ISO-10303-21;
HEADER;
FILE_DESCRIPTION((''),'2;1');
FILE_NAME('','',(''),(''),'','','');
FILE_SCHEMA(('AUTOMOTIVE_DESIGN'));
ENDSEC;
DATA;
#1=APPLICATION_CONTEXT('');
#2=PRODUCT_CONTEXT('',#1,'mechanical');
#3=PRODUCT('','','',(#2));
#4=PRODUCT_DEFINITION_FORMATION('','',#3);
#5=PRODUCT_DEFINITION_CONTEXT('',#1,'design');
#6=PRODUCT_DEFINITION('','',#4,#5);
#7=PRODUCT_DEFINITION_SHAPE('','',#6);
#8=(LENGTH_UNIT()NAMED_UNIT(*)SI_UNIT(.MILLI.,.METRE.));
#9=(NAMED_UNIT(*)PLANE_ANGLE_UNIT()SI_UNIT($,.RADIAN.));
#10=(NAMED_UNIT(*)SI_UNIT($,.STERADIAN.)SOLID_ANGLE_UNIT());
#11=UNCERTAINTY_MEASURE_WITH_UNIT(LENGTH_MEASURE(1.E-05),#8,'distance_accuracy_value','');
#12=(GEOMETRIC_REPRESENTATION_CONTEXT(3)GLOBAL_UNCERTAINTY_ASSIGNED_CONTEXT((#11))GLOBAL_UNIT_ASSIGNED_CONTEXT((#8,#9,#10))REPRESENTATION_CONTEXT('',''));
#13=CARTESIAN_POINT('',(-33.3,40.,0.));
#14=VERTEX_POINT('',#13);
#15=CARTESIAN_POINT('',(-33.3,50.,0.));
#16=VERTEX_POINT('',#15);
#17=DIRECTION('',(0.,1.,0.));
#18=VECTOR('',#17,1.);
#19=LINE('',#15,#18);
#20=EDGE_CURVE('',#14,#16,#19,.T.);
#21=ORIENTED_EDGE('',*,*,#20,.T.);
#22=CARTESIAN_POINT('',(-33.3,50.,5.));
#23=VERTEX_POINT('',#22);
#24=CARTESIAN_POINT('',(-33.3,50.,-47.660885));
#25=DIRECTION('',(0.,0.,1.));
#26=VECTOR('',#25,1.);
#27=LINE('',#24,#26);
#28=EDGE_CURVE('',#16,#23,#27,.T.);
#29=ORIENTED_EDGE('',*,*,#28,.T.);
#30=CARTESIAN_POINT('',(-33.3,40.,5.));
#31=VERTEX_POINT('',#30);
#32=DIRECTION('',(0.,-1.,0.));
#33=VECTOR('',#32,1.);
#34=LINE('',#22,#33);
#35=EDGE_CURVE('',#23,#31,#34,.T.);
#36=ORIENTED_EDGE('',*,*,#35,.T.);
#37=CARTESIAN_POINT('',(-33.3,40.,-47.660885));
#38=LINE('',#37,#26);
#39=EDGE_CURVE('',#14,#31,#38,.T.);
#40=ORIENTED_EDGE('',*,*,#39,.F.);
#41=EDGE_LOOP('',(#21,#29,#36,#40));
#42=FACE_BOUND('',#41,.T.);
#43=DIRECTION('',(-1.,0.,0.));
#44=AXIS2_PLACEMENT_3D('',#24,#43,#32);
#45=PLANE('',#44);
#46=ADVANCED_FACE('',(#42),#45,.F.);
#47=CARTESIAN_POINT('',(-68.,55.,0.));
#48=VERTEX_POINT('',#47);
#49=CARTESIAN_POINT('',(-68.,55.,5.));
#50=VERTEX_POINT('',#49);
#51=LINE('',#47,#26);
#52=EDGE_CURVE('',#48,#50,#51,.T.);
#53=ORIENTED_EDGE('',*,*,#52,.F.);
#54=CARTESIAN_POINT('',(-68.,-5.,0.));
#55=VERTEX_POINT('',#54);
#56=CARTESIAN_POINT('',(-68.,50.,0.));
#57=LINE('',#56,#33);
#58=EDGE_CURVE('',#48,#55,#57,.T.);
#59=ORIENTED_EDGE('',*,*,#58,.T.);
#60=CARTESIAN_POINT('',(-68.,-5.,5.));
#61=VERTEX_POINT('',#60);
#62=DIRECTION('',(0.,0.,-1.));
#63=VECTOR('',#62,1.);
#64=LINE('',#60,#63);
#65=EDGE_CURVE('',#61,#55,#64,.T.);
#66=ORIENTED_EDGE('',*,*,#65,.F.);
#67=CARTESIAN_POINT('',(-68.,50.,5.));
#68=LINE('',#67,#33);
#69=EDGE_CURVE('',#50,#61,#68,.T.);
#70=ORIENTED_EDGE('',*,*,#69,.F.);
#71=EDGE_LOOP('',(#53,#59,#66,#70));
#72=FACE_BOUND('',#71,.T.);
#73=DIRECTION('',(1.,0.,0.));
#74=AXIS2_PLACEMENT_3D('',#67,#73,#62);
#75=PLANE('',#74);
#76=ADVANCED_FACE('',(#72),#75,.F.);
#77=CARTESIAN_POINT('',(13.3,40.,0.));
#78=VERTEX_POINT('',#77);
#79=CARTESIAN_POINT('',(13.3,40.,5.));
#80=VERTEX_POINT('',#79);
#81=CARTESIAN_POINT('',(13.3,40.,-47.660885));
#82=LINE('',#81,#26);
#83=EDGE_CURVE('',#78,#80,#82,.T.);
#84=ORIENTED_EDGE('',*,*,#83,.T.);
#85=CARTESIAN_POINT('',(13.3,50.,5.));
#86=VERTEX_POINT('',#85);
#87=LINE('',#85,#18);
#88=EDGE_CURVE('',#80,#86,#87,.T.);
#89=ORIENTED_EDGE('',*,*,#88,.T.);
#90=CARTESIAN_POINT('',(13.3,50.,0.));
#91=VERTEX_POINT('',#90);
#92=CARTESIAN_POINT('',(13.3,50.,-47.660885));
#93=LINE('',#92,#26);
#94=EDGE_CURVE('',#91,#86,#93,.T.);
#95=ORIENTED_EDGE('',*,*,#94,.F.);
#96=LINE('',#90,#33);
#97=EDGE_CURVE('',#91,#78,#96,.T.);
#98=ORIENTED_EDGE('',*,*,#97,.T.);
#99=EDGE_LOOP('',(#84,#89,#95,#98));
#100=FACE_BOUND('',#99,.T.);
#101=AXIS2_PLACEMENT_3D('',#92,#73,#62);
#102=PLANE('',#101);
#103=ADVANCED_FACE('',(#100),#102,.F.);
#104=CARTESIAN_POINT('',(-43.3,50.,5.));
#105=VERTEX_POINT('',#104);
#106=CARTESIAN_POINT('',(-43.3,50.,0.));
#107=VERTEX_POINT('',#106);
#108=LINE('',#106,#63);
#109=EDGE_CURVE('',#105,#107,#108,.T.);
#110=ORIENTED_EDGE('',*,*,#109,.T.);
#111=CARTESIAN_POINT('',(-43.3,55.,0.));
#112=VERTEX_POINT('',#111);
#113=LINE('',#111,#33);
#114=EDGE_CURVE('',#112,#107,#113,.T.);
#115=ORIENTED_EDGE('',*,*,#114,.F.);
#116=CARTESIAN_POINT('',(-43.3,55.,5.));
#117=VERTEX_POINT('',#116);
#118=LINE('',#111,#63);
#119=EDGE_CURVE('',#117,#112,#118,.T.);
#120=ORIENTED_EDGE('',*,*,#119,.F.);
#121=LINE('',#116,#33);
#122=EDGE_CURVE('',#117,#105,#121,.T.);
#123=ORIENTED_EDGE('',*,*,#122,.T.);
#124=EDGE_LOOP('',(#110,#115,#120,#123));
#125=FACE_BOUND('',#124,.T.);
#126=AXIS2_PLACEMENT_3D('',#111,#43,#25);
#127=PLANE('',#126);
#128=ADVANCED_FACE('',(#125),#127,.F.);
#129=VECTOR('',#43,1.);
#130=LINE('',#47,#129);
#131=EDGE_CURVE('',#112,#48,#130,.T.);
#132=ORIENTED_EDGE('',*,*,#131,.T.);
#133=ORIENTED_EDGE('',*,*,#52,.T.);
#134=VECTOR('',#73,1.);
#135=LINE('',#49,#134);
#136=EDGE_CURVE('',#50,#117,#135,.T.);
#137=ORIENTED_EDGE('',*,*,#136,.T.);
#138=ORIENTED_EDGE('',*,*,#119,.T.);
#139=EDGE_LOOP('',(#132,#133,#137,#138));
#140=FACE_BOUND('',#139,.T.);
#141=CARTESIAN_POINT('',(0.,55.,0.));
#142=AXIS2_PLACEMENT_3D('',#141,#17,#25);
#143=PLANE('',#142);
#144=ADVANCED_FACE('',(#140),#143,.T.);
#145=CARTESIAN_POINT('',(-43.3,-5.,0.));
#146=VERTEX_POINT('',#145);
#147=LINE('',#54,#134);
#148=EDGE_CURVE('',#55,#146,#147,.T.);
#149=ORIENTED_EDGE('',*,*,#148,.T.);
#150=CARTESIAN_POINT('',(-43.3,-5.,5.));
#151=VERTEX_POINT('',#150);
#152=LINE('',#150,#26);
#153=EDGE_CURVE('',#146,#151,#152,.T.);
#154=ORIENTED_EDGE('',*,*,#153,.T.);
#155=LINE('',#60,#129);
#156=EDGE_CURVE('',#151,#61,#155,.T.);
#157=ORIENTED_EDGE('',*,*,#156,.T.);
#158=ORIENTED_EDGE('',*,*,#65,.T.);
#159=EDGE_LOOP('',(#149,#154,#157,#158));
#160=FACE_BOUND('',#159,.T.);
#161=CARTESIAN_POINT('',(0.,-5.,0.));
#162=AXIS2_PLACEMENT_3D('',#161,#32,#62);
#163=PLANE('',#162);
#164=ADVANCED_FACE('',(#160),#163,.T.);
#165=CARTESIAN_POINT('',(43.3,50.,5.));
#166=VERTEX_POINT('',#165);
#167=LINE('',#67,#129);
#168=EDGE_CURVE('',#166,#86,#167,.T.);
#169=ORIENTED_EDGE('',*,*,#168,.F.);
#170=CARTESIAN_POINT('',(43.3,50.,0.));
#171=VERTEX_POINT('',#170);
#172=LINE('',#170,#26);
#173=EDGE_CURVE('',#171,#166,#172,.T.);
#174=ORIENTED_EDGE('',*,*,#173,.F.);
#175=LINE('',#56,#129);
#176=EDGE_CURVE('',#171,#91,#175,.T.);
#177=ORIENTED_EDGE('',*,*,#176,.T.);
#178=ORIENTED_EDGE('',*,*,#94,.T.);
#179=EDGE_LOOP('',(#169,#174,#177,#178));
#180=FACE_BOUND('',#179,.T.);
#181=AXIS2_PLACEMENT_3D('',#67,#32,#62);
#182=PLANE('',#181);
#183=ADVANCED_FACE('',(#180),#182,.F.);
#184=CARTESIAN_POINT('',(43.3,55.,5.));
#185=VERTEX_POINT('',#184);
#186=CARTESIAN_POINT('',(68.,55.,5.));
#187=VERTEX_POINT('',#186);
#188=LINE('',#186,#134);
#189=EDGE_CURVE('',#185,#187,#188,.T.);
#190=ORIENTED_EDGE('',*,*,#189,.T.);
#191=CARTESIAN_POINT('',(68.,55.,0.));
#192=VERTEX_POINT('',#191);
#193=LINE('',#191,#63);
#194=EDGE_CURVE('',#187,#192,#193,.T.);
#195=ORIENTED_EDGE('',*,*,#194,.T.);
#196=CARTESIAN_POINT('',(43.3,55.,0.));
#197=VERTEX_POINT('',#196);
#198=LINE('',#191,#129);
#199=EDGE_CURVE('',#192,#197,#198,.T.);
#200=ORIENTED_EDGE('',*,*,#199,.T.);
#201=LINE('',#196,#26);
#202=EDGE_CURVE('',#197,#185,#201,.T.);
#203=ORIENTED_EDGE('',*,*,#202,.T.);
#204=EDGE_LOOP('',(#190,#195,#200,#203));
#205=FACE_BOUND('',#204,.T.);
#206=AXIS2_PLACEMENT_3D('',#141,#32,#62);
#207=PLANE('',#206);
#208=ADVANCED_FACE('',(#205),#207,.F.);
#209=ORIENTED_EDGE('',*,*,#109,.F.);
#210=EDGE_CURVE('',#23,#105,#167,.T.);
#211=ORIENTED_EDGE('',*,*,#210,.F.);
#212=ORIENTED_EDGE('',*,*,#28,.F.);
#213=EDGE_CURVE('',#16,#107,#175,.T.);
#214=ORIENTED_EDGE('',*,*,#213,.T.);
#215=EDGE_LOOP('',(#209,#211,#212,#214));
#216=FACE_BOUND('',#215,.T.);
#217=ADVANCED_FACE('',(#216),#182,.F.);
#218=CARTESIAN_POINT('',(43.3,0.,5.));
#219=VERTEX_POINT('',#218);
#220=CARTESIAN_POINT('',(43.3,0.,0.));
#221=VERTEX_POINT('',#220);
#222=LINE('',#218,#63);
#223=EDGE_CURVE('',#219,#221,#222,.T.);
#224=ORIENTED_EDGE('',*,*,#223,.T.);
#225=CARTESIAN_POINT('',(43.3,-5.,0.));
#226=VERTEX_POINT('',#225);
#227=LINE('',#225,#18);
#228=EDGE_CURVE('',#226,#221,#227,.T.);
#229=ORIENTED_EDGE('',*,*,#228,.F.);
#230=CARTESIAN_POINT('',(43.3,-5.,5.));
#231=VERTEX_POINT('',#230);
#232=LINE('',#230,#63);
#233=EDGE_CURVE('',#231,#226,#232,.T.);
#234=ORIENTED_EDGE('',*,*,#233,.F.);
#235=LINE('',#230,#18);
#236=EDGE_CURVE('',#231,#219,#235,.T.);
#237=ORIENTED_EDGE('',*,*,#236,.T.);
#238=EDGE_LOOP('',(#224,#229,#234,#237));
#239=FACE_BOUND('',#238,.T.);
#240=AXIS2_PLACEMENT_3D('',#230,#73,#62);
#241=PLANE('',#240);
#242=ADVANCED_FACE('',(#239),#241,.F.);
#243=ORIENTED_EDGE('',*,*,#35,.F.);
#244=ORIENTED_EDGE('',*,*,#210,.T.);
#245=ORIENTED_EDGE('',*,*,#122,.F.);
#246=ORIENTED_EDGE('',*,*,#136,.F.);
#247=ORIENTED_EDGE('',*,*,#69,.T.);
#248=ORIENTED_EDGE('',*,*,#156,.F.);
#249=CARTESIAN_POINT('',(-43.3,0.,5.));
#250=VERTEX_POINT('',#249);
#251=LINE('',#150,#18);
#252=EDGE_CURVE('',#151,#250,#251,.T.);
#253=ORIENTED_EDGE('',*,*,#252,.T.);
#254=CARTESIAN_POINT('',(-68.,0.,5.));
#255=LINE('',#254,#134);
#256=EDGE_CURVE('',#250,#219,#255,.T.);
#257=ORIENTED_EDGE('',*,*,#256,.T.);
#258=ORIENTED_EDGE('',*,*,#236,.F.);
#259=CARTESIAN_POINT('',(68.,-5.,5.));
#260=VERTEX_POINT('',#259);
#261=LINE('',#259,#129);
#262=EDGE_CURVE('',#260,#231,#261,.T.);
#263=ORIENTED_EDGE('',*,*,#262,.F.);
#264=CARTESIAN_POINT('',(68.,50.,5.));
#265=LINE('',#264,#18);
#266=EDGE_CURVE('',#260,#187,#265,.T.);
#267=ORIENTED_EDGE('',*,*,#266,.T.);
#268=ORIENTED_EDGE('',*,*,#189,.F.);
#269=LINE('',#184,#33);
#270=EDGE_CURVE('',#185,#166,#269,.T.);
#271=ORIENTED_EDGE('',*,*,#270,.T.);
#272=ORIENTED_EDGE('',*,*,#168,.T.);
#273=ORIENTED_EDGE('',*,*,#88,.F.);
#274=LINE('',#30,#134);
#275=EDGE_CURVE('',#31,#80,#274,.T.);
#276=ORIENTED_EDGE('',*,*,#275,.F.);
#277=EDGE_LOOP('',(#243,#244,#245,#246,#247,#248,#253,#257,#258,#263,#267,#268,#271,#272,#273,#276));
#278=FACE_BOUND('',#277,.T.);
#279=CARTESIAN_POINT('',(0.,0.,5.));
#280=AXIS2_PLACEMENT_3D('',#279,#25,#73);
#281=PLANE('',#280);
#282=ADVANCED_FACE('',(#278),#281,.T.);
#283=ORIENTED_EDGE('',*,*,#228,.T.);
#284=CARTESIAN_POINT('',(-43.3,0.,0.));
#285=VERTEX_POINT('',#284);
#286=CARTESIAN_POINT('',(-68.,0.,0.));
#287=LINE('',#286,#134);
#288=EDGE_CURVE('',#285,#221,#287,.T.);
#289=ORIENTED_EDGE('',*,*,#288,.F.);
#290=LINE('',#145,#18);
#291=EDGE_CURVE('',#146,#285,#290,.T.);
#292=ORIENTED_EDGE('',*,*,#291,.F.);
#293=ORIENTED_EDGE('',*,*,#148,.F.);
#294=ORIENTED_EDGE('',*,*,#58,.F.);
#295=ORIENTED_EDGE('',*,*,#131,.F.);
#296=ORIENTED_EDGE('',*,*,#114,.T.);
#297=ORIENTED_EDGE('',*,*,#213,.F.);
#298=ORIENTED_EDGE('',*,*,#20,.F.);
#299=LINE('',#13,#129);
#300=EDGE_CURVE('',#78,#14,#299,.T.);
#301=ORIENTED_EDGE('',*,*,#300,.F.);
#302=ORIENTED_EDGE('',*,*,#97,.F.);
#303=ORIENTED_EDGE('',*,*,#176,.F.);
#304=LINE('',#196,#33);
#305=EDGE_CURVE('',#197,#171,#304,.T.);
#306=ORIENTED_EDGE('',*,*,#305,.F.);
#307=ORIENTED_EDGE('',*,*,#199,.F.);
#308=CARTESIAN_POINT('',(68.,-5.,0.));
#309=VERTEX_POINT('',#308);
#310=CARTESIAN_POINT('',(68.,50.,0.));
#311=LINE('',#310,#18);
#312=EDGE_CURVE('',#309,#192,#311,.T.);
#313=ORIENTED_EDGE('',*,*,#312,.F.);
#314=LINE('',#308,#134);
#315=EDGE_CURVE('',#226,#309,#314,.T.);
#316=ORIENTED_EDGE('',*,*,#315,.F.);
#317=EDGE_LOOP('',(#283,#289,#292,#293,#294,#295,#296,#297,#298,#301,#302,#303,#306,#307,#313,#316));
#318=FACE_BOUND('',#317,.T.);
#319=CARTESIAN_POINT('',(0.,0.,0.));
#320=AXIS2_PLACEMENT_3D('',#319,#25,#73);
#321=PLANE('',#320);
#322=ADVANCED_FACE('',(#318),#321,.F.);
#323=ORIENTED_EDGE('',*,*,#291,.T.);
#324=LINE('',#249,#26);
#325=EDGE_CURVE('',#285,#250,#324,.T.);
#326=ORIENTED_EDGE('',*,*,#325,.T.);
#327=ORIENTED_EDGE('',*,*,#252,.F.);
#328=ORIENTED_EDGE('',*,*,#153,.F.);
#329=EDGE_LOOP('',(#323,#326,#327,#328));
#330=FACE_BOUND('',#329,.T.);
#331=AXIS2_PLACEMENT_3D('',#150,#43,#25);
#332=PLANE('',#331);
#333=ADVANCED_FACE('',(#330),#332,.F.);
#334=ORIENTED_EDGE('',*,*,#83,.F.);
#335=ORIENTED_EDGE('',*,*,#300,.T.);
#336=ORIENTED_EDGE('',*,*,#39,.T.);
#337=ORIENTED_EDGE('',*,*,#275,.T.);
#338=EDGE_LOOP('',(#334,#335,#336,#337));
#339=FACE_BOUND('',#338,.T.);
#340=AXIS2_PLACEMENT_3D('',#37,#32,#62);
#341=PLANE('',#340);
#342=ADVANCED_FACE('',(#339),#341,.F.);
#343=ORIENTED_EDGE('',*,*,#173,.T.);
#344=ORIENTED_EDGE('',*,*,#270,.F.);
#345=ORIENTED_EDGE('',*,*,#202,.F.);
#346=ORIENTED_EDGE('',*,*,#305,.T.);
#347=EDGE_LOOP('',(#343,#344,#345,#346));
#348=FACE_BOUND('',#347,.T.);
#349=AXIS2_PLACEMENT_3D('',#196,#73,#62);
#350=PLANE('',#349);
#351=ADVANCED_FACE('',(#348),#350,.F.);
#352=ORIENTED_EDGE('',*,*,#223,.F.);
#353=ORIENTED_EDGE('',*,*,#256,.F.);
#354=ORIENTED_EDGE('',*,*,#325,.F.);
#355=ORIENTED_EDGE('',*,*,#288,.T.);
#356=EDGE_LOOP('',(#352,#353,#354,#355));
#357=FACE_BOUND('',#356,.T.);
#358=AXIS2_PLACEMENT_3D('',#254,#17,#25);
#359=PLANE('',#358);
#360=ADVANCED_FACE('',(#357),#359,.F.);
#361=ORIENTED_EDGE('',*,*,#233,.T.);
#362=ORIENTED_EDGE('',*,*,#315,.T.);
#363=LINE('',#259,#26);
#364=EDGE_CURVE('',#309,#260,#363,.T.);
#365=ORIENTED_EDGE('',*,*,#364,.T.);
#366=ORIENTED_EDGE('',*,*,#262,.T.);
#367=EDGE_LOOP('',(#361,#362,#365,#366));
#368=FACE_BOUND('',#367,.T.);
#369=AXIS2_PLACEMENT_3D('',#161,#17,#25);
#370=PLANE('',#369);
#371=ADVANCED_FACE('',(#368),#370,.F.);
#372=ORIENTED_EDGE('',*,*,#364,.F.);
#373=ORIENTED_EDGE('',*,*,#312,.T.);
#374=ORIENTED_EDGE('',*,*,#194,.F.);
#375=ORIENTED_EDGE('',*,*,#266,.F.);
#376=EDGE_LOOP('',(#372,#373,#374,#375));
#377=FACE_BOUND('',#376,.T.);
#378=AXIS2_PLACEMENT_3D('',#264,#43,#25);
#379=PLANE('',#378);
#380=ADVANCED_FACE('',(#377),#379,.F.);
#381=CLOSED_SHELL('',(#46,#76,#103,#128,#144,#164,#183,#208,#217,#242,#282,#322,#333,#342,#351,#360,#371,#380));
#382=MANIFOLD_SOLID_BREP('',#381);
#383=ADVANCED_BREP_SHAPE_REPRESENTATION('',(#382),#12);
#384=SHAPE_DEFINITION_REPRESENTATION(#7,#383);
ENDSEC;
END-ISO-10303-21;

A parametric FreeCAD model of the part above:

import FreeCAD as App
import Part
import Sketcher

doc = App.newDocument("Part")
body = doc.addObject("PartDesign::Body", "Body")

# Sketch on XY plane
sketch1 = doc.addObject("Sketcher::SketchObject", "Sketch")
body.addObject(sketch1)
sketch1.AttachmentSupport = (doc.XY_Plane, [""])
sketch1.MapMode = "FlatFace"
sketch1.addGeometry(Part.LineSegment(App.Vector(-68, 50, 0), App.Vector(-68, 0, 0)), False)
sketch1.addGeometry(Part.LineSegment(App.Vector(-68, 0, 0), App.Vector(68, 0, 0)), False)
sketch1.addGeometry(Part.LineSegment(App.Vector(68, 0, 0), App.Vector(68, 50, 0)), False)
sketch1.addGeometry(Part.LineSegment(App.Vector(68, 50, 0), App.Vector(-68, 50, 0)), False)
sketch1.addConstraint(Sketcher.Constraint("Coincident", 0, 2, 1, 1))
sketch1.addConstraint(Sketcher.Constraint("Coincident", 1, 2, 2, 1))
sketch1.addConstraint(Sketcher.Constraint("Coincident", 2, 2, 3, 1))
sketch1.addConstraint(Sketcher.Constraint("Coincident", 3, 2, 0, 1))
sketch1.addConstraint(Sketcher.Constraint("Vertical", 0))
sketch1.addConstraint(Sketcher.Constraint("Horizontal", 1))
sketch1.addConstraint(Sketcher.Constraint("Vertical", 2))
sketch1.addConstraint(Sketcher.Constraint("Horizontal", 3))
sketch1.addConstraint(Sketcher.Constraint("Symmetric", 0, 2, 1, 2, -1, 1))
sketch1.addConstraint(Sketcher.Constraint("DistanceX", 1, 1, 1, 2, 136.0))
sketch1.addConstraint(Sketcher.Constraint("DistanceY", 0, 2, 0, 1, 50.0))
pad1 = doc.addObject("PartDesign::Pad", "Pad")
body.addObject(pad1)
pad1.Profile = sketch1
pad1.Length = 5

# Sketch on XZ plane
sketch2 = doc.addObject("Sketcher::SketchObject", "Sketch001")
body.addObject(sketch2)
sketch2.AttachmentSupport = (doc.XZ_Plane, [""])
sketch2.MapMode = "FlatFace"
sketch2.AttachmentOffset = App.Placement(App.Vector(0, 0, -50), App.Rotation())
sketch2.addGeometry(Part.LineSegment(App.Vector(-68, 0, 0), App.Vector(-68, 5, 0)), False)
sketch2.addGeometry(Part.LineSegment(App.Vector(-68, 5, 0), App.Vector(-43.3, 5, 0)), False)
sketch2.addGeometry(Part.LineSegment(App.Vector(-43.3, 5, 0), App.Vector(-43.3, 0, 0)), False)
sketch2.addGeometry(Part.LineSegment(App.Vector(-43.3, 0, 0), App.Vector(-68, 0, 0)), False)
sketch2.addGeometry(Part.LineSegment(App.Vector(43.3, 0, 0), App.Vector(43.3, 5, 0)), False)
sketch2.addGeometry(Part.LineSegment(App.Vector(43.3, 5, 0), App.Vector(68, 5, 0)), False)
sketch2.addGeometry(Part.LineSegment(App.Vector(68, 5, 0), App.Vector(68, 0, 0)), False)
sketch2.addGeometry(Part.LineSegment(App.Vector(68, 0, 0), App.Vector(43.3, 0, 0)), False)
sketch2.addConstraint(Sketcher.Constraint("Coincident", 0, 2, 1, 1))
sketch2.addConstraint(Sketcher.Constraint("Coincident", 1, 2, 2, 1))
sketch2.addConstraint(Sketcher.Constraint("Coincident", 2, 2, 3, 1))
sketch2.addConstraint(Sketcher.Constraint("Coincident", 3, 2, 0, 1))
sketch2.addConstraint(Sketcher.Constraint("Coincident", 4, 2, 5, 1))
sketch2.addConstraint(Sketcher.Constraint("Coincident", 5, 2, 6, 1))
sketch2.addConstraint(Sketcher.Constraint("Coincident", 6, 2, 7, 1))
sketch2.addConstraint(Sketcher.Constraint("Coincident", 7, 2, 4, 1))
sketch2.addConstraint(Sketcher.Constraint("Vertical", 0))
sketch2.addConstraint(Sketcher.Constraint("Horizontal", 1))
sketch2.addConstraint(Sketcher.Constraint("Vertical", 2))
sketch2.addConstraint(Sketcher.Constraint("Horizontal", 3))
sketch2.addConstraint(Sketcher.Constraint("Vertical", 4))
sketch2.addConstraint(Sketcher.Constraint("Horizontal", 5))
sketch2.addConstraint(Sketcher.Constraint("Vertical", 6))
sketch2.addConstraint(Sketcher.Constraint("Horizontal", 7))
sketch2.addConstraint(Sketcher.Constraint("Symmetric", 3, 2, 6, 2, -1, 1))
sketch2.addConstraint(Sketcher.Constraint("Symmetric", 1, 2, 4, 2, -2))
sketch2.addConstraint(Sketcher.Constraint("PointOnObject", 2, 2, -1))
sketch2.addConstraint(Sketcher.Constraint("DistanceY", 0, 1, 0, 2, 5.0))
sketch2.addConstraint(Sketcher.Constraint("DistanceX", 1, 1, 1, 2, 24.7))
sketch2.addConstraint(Sketcher.Constraint("DistanceX", 0, 2, -1, 1, 68.0))
pad2 = doc.addObject("PartDesign::Pad", "Pad001")
body.addObject(pad2)
pad2.Profile = sketch2
pad2.Length = 5
pad2.Reversed = True

# Sketch on XZ plane
sketch3 = doc.addObject("Sketcher::SketchObject", "Sketch002")
body.addObject(sketch3)
sketch3.AttachmentSupport = (doc.XZ_Plane, [""])
sketch3.MapMode = "FlatFace"
sketch3.addGeometry(Part.LineSegment(App.Vector(-68, 5, 0), App.Vector(-68, 0, 0)), False)
sketch3.addGeometry(Part.LineSegment(App.Vector(-68, 0, 0), App.Vector(-43.3, 0, 0)), False)
sketch3.addGeometry(Part.LineSegment(App.Vector(-43.3, 0, 0), App.Vector(-43.3, 5, 0)), False)
sketch3.addGeometry(Part.LineSegment(App.Vector(-43.3, 5, 0), App.Vector(-68, 5, 0)), False)
sketch3.addGeometry(Part.LineSegment(App.Vector(43.3, 5, 0), App.Vector(43.3, 0, 0)), False)
sketch3.addGeometry(Part.LineSegment(App.Vector(43.3, 0, 0), App.Vector(68, 0, 0)), False)
sketch3.addGeometry(Part.LineSegment(App.Vector(68, 0, 0), App.Vector(68, 5, 0)), False)
sketch3.addGeometry(Part.LineSegment(App.Vector(68, 5, 0), App.Vector(43.3, 5, 0)), False)
sketch3.addConstraint(Sketcher.Constraint("Coincident", 0, 2, 1, 1))
sketch3.addConstraint(Sketcher.Constraint("Coincident", 1, 2, 2, 1))
sketch3.addConstraint(Sketcher.Constraint("Coincident", 2, 2, 3, 1))
sketch3.addConstraint(Sketcher.Constraint("Coincident", 3, 2, 0, 1))
sketch3.addConstraint(Sketcher.Constraint("Coincident", 4, 2, 5, 1))
sketch3.addConstraint(Sketcher.Constraint("Coincident", 5, 2, 6, 1))
sketch3.addConstraint(Sketcher.Constraint("Coincident", 6, 2, 7, 1))
sketch3.addConstraint(Sketcher.Constraint("Coincident", 7, 2, 4, 1))
sketch3.addConstraint(Sketcher.Constraint("Vertical", 0))
sketch3.addConstraint(Sketcher.Constraint("Horizontal", 1))
sketch3.addConstraint(Sketcher.Constraint("Vertical", 2))
sketch3.addConstraint(Sketcher.Constraint("Horizontal", 3))
sketch3.addConstraint(Sketcher.Constraint("Vertical", 4))
sketch3.addConstraint(Sketcher.Constraint("Horizontal", 5))
sketch3.addConstraint(Sketcher.Constraint("Vertical", 6))
sketch3.addConstraint(Sketcher.Constraint("Horizontal", 7))
sketch3.addConstraint(Sketcher.Constraint("Symmetric", 1, 2, 4, 2, -1, 1))
sketch3.addConstraint(Sketcher.Constraint("Symmetric", 0, 2, 5, 2, -2))
sketch3.addConstraint(Sketcher.Constraint("Horizontal", 3, 2, 6, 2))
sketch3.addConstraint(Sketcher.Constraint("DistanceY", 0, 2, 0, 1, 5.0))
sketch3.addConstraint(Sketcher.Constraint("DistanceX", 1, 1, 1, 2, 24.7))
sketch3.addConstraint(Sketcher.Constraint("DistanceX", 0, 2, -1, 1, 68.0))
pad3 = doc.addObject("PartDesign::Pad", "Pad002")
body.addObject(pad3)
pad3.Profile = sketch3
pad3.Length = 5

# Sketch on XY plane
sketch4 = doc.addObject("Sketcher::SketchObject", "Sketch003")
body.addObject(sketch4)
sketch4.AttachmentSupport = (doc.XY_Plane, [""])
sketch4.MapMode = "FlatFace"
sketch4.AttachmentOffset = App.Placement(App.Vector(0, 0, 5), App.Rotation())
sketch4.addGeometry(Part.LineSegment(App.Vector(-33.3, 50, 0), App.Vector(-33.3, 40, 0)), False)
sketch4.addGeometry(Part.LineSegment(App.Vector(-33.3, 40, 0), App.Vector(13.3, 40, 0)), False)
sketch4.addGeometry(Part.LineSegment(App.Vector(13.3, 40, 0), App.Vector(13.3, 50, 0)), False)
sketch4.addGeometry(Part.LineSegment(App.Vector(13.3, 50, 0), App.Vector(-33.3, 50, 0)), False)
sketch4.addConstraint(Sketcher.Constraint("Coincident", 0, 2, 1, 1))
sketch4.addConstraint(Sketcher.Constraint("Coincident", 1, 2, 2, 1))
sketch4.addConstraint(Sketcher.Constraint("Coincident", 2, 2, 3, 1))
sketch4.addConstraint(Sketcher.Constraint("Coincident", 3, 2, 0, 1))
sketch4.addConstraint(Sketcher.Constraint("Vertical", 0))
sketch4.addConstraint(Sketcher.Constraint("Horizontal", 1))
sketch4.addConstraint(Sketcher.Constraint("Vertical", 2))
sketch4.addConstraint(Sketcher.Constraint("Horizontal", 3))
sketch4.addConstraint(Sketcher.Constraint("DistanceY", 0, 2, 0, 1, 10.0))
sketch4.addConstraint(Sketcher.Constraint("DistanceX", 1, 1, 1, 2, 46.6))
sketch4.addConstraint(Sketcher.Constraint("DistanceY", -1, 1, 0, 2, 40.0))
sketch4.addConstraint(Sketcher.Constraint("DistanceX", 0, 2, -1, 1, 33.3))
pocket1 = doc.addObject("PartDesign::Pocket", "Pocket")
body.addObject(pocket1)
pocket1.Profile = sketch4
pocket1.Length = 5

doc.recompute()
